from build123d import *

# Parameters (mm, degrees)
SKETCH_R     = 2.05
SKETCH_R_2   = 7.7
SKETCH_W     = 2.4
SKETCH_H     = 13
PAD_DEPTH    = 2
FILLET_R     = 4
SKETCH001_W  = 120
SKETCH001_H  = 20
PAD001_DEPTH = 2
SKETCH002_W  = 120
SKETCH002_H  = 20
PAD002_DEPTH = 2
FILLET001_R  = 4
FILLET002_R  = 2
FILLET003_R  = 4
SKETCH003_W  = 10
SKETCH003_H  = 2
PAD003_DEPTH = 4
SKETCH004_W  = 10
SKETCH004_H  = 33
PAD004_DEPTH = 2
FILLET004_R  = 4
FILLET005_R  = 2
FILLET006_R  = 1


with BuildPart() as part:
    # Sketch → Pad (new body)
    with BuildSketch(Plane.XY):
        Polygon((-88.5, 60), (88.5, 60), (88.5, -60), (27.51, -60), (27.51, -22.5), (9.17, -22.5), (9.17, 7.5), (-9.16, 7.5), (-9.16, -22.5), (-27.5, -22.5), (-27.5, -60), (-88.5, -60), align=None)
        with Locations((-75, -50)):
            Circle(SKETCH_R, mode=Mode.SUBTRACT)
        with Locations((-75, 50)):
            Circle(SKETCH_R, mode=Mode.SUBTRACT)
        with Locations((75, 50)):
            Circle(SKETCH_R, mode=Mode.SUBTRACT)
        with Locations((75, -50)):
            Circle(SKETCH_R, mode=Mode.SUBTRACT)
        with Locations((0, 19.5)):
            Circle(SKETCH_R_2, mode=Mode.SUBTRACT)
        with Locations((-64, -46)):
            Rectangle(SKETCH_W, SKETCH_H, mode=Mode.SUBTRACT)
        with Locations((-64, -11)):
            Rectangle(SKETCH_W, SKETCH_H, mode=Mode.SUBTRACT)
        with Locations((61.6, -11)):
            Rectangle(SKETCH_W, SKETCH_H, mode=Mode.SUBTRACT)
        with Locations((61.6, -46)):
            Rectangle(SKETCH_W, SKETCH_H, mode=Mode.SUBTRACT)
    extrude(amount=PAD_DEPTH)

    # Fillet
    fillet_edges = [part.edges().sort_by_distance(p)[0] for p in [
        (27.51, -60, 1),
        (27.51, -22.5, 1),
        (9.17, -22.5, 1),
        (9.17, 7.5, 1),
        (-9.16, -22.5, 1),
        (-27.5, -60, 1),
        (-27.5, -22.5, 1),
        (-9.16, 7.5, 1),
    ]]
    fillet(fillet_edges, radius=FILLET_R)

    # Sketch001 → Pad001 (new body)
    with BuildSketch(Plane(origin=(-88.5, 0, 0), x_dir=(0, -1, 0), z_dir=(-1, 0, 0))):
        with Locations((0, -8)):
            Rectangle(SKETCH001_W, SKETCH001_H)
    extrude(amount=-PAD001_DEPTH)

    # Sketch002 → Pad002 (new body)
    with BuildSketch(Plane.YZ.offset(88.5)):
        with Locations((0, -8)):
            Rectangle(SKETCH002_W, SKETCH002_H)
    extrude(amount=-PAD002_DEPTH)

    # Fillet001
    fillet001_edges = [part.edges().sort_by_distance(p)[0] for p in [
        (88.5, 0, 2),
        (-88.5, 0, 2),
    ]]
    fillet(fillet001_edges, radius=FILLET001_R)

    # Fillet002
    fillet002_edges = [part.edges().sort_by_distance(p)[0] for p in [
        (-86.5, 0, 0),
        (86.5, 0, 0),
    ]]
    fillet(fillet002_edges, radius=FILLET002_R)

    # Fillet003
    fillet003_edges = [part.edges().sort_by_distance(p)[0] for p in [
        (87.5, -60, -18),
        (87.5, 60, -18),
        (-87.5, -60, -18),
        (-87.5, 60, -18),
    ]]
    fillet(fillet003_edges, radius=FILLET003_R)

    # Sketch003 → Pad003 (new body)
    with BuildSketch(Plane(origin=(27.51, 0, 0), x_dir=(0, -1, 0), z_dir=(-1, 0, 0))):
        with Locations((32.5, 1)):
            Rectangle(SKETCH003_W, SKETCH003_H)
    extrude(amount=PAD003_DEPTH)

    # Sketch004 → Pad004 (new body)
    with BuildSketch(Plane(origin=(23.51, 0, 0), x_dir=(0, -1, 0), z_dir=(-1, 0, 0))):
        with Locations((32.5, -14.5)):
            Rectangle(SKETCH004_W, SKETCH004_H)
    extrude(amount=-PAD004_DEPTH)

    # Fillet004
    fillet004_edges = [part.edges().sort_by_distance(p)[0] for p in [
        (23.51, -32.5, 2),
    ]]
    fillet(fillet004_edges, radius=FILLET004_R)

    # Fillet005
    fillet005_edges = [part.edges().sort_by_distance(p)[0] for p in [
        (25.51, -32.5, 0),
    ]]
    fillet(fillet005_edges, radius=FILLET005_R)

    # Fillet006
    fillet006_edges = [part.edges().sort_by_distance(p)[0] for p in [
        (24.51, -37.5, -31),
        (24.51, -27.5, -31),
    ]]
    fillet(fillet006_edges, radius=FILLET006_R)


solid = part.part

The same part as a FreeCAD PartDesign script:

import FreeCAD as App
import Part
import Sketcher
from FreeCAD import Vector
Q = App.Units.Quantity


def edges_at(feature, points):
    """Names of the edges that pass closest to the given points."""
    edges = feature.Shape.Edges
    near = lambda p: min(range(len(edges)), key=lambda i: edges[i].distToShape(Part.Vertex(*p))[0])
    return sorted({f"Edge{near(p) + 1}" for p in points})


def add_polygon(sketch, points):
    """Adds a closed chain of lines whose ends are joined by coincident constraints."""
    first, n = sketch.GeometryCount, len(points)
    for a, b in zip(points, points[1:] + points[:1]):
        sketch.addGeometry(Part.LineSegment(App.Vector(*a, 0), App.Vector(*b, 0)), False)
    for i in range(n):
        sketch.addConstraint(Sketcher.Constraint("Coincident", first + i, 2, first + (i + 1) % n, 1))

doc = App.newDocument("Part")
body = doc.addObject("PartDesign::Body", "Body")

# Sketch on XY plane
sketch1 = body.newObject("Sketcher::SketchObject", "Sketch")
sketch1.AttachmentSupport = (doc.getObject("XY_Plane"), [""])
sketch1.MapMode = "FlatFace"
add_polygon(sketch1, [(88.5, 60), (-88.5, 60), (-88.5, -60), (-27.5, -60), (-27.5, -22.5), (-9.2, -22.5), (-9.2, 7.5), (9.2, 7.5), (9.2, -22.5), (27.5, -22.5), (27.5, -60), (88.5, -60)])  # lines 0-11
sketch1.addGeometry(Part.Circle(Vector(75, -50, 0), Vector(0, 0, 1), 2), False)  # 12
add_polygon(sketch1, [(60.4, -52.5), (60.4, -39.5), (62.8, -39.5), (62.8, -52.5)])  # lines 13-16
add_polygon(sketch1, [(60.4, -17.5), (60.4, -4.5), (62.8, -4.5), (62.8, -17.5)])  # lines 17-20
add_polygon(sketch1, [(-65.2, -52.5), (-65.2, -39.5), (-62.8, -39.5), (-62.8, -52.5)])  # lines 21-24
sketch1.addGeometry(Part.Circle(Vector(-75, -50, 0), Vector(0, 0, 1), 2), False)  # 25
add_polygon(sketch1, [(-65.2, -17.5), (-65.2, -4.5), (-62.8, -4.5), (-62.8, -17.5)])  # lines 26-29
sketch1.addGeometry(Part.Circle(Vector(75, 50, 0), Vector(0, 0, 1), 2), False)  # 30
sketch1.addGeometry(Part.Circle(Vector(0, 19.5, 0), Vector(0, 0, 1), 7.7), False)  # 31
sketch1.addGeometry(Part.Circle(Vector(-75, 50, 0), Vector(0, 0, 1), 2), False)  # 32
sketch1.addConstraint(Sketcher.Constraint("Horizontal", 0))
sketch1.addConstraint(Sketcher.Constraint("Vertical", 1))
sketch1.addConstraint(Sketcher.Constraint("Horizontal", 2))
sketch1.addConstraint(Sketcher.Constraint("Vertical", 3))
sketch1.addConstraint(Sketcher.Constraint("Horizontal", 4))
sketch1.addConstraint(Sketcher.Constraint("Vertical", 5))
sketch1.addConstraint(Sketcher.Constraint("Horizontal", 6))
sketch1.addConstraint(Sketcher.Constraint("Vertical", 7))
sketch1.addConstraint(Sketcher.Constraint("Horizontal", 8))
sketch1.addConstraint(Sketcher.Constraint("Vertical", 9))
sketch1.addConstraint(Sketcher.Constraint("Horizontal", 10))
sketch1.addConstraint(Sketcher.Constraint("Vertical", 11))
sketch1.addConstraint(Sketcher.Constraint("Vertical", 13))
sketch1.addConstraint(Sketcher.Constraint("Horizontal", 14))
sketch1.addConstraint(Sketcher.Constraint("Vertical", 15))
sketch1.addConstraint(Sketcher.Constraint("Horizontal", 16))
sketch1.addConstraint(Sketcher.Constraint("Vertical", 17))
sketch1.addConstraint(Sketcher.Constraint("Horizontal", 18))
sketch1.addConstraint(Sketcher.Constraint("Vertical", 19))
sketch1.addConstraint(Sketcher.Constraint("Horizontal", 20))
sketch1.addConstraint(Sketcher.Constraint("Vertical", 21))
sketch1.addConstraint(Sketcher.Constraint("Horizontal", 22))
sketch1.addConstraint(Sketcher.Constraint("Vertical", 23))
sketch1.addConstraint(Sketcher.Constraint("Horizontal", 24))
sketch1.addConstraint(Sketcher.Constraint("Vertical", 26))
sketch1.addConstraint(Sketcher.Constraint("Horizontal", 27))
sketch1.addConstraint(Sketcher.Constraint("Vertical", 28))
sketch1.addConstraint(Sketcher.Constraint("Horizontal", 29))
sketch1.addConstraint(Sketcher.Constraint("Equal", 12, 25))
sketch1.addConstraint(Sketcher.Constraint("Equal", 25, 30))
sketch1.addConstraint(Sketcher.Constraint("Equal", 30, 32))
sketch1.addConstraint(Sketcher.Constraint("Symmetric", 25, 3, 30, 3, -1, 1))
sketch1.addConstraint(Sketcher.Constraint("Symmetric", 12, 3, 32, 3, -1, 1))
sketch1.addConstraint(Sketcher.Constraint("Symmetric", 0, 2, 10, 2, -1, 1))
sketch1.addConstraint(Sketcher.Constraint("Symmetric", 12, 3, 25, 3, -2))
sketch1.addConstraint(Sketcher.Constraint("Symmetric", 14, 2, 22, 2, -2))
sketch1.addConstraint(Sketcher.Constraint("Symmetric", 18, 2, 27, 2, -2))
sketch1.addConstraint(Sketcher.Constraint("PointOnObject", 31, 3, -2))
sketch1.addConstraint(Sketcher.Constraint("Horizontal", 4, 2, 7, 2))
sketch1.addConstraint(Sketcher.Constraint("Horizontal", 2, 2, 9, 2))
sketch1.addConstraint(Sketcher.Constraint("Horizontal", 16, 2, 23, 2))
sketch1.addConstraint(Sketcher.Constraint("Horizontal", 20, 2, 28, 2))
sketch1.addConstraint(Sketcher.Constraint("Vertical", 16, 2, 17, 2))
sketch1.addConstraint(Sketcher.Constraint("Vertical", 15, 2, 18, 2))
sketch1.addConstraint(Sketcher.Constraint("Vertical", 24, 2, 26, 2))
sketch1.addConstraint(Sketcher.Constraint("Equal", 4, 8))
sketch1.addConstraint(Sketcher.Constraint("Equal", 20, 22))
sketch1.addConstraint(Sketcher.Constraint("Equal", 15, 17))
sketch1.addConstraint(Sketcher.Constraint("Diameter", 12, Q("4.1 mm")))
sketch1.addConstraint(Sketcher.Constraint("Diameter", 31, Q("15.4 mm")))
sketch1.addConstraint(Sketcher.Constraint("DistanceX", 0, 2, 0, 1, Q("177 mm")))
sketch1.addConstraint(Sketcher.Constraint("DistanceX", 2, 1, 2, 2, Q("61 mm")))
sketch1.addConstraint(Sketcher.Constraint("DistanceY", 1, 2, 1, 1, Q("120 mm")))
sketch1.addConstraint(Sketcher.Constraint("DistanceY", 5, 1, 5, 2, Q("30 mm")))
sketch1.addConstraint(Sketcher.Constraint("DistanceY", 13, 1, 13, 2, Q("13 mm")))
sketch1.addConstraint(Sketcher.Constraint("DistanceX", 14, 1, 14, 2, Q("2.4 mm")))
sketch1.addConstraint(Sketcher.Constraint("DistanceY", 3, 1, 3, 2, Q("37.5 mm")))
sketch1.addConstraint(Sketcher.Constraint("DistanceX", -1, 1, 12, 3, Q("75 mm")))
sketch1.addConstraint(Sketcher.Constraint("DistanceY", 12, 3, -1, 1, Q("50 mm")))
sketch1.addConstraint(Sketcher.Constraint("DistanceY", 3, 2, 31, 3, Q("42 mm")))
sketch1.addConstraint(Sketcher.Constraint("DistanceY", 13, 2, 8, 2, Q("17 mm")))
sketch1.addConstraint(Sketcher.Constraint("DistanceY", 13, 2, 17, 2, Q("35 mm")))
sketch1.addConstraint(Sketcher.Constraint("DistanceX", 4, 1, 4, 2, Q("18.34 mm")))
sketch1.addConstraint(Sketcher.Constraint("DistanceX", 6, 1, 6, 2, Q("18.33 mm")))
sketch1.addConstraint(Sketcher.Constraint("DistanceX", -1, 1, 13, 2, Q("60.4 mm")))
pad1 = body.newObject("PartDesign::Pad", "Pad")
pad1.Profile = sketch1
pad1.Length = 2
doc.recompute()

fillet = body.newObject("PartDesign::Fillet", "Fillet")
fillet.Base = (pad1, edges_at(pad1, [
    (27.51, -60, 1),
    (27.51, -22.5, 1),
    (9.17, -22.5, 1),
    (9.17, 7.5, 1),
    (-9.16, -22.5, 1),
    (-27.5, -60, 1),
    (-27.5, -22.5, 1),
    (-9.16, 7.5, 1),
]))
fillet.Radius = 4

# Sketch on YZ plane
sketch2 = body.newObject("Sketcher::SketchObject", "Sketch001")
sketch2.AttachmentSupport = (doc.getObject("YZ_Plane"), [""])
sketch2.MapMode = "FlatFace"
sketch2.AttachmentOffset = App.Placement(Vector(0, 0, -88.5), App.Rotation())
add_polygon(sketch2, [(60, 2), (60, -18), (-60, -18), (-60, 2)])  # lines 0-3
sketch2.addConstraint(Sketcher.Constraint("Vertical", 0))
sketch2.addConstraint(Sketcher.Constraint("Horizontal", 1))
sketch2.addConstraint(Sketcher.Constraint("Vertical", 2))
sketch2.addConstraint(Sketcher.Constraint("Horizontal", 3))
sketch2.addConstraint(Sketcher.Constraint("DistanceX", 1, 2, 1, 1, Q("120 mm")))
sketch2.addConstraint(Sketcher.Constraint("DistanceY", 0, 2, 0, 1, Q("20 mm")))
sketch2.addConstraint(Sketcher.Constraint("DistanceX", -1, 1, 0, 2, Q("60 mm")))
sketch2.addConstraint(Sketcher.Constraint("DistanceY", 0, 2, -1, 1, Q("18 mm")))
pad2 = body.newObject("PartDesign::Pad", "Pad001")
pad2.Profile = sketch2
pad2.Length = 2

# Sketch on YZ plane
sketch3 = body.newObject("Sketcher::SketchObject", "Sketch002")
sketch3.AttachmentSupport = (doc.getObject("YZ_Plane"), [""])
sketch3.MapMode = "FlatFace"
sketch3.AttachmentOffset = App.Placement(Vector(0, 0, 88.5), App.Rotation())
add_polygon(sketch3, [(-60, 2), (-60, -18), (60, -18), (60, 2)])  # lines 0-3
sketch3.addConstraint(Sketcher.Constraint("Vertical", 0))
sketch3.addConstraint(Sketcher.Constraint("Horizontal", 1))
sketch3.addConstraint(Sketcher.Constraint("Vertical", 2))
sketch3.addConstraint(Sketcher.Constraint("Horizontal", 3))
sketch3.addConstraint(Sketcher.Constraint("DistanceX", 1, 1, 1, 2, Q("120 mm")))
sketch3.addConstraint(Sketcher.Constraint("DistanceY", 0, 2, 0, 1, Q("20 mm")))
sketch3.addConstraint(Sketcher.Constraint("DistanceX", 0, 2, -1, 1, Q("60 mm")))
sketch3.addConstraint(Sketcher.Constraint("DistanceY", 0, 2, -1, 1, Q("18 mm")))
pad3 = body.newObject("PartDesign::Pad", "Pad002")
pad3.Profile = sketch3
pad3.Length = 2
pad3.Reversed = True
doc.recompute()

fillet2 = body.newObject("PartDesign::Fillet", "Fillet001")
fillet2.Base = (pad3, edges_at(pad3, [(88.5, 0, 2), (-88.5, 0, 2)]))
fillet2.Radius = 4
doc.recompute()

fillet3 = body.newObject("PartDesign::Fillet", "Fillet002")
fillet3.Base = (fillet2, edges_at(fillet2, [(-86.5, 0, 0), (86.5, 0, 0)]))
fillet3.Radius = 2
doc.recompute()

fillet4 = body.newObject("PartDesign::Fillet", "Fillet003")
fillet4.Base = (fillet3, edges_at(fillet3, [
    (87.5, -60, -18),
    (87.5, 60, -18),
    (-87.5, -60, -18),
    (-87.5, 60, -18),
]))
fillet4.Radius = 4

# Sketch on YZ plane
sketch4 = body.newObject("Sketcher::SketchObject", "Sketch003")
sketch4.AttachmentSupport = (doc.getObject("YZ_Plane"), [""])
sketch4.MapMode = "FlatFace"
sketch4.AttachmentOffset = App.Placement(Vector(0, 0, 27.51), App.Rotation())
add_polygon(sketch4, [(-27.5, 2), (-27.5, 0), (-37.5, 0), (-37.5, 2)])  # lines 0-3
sketch4.addConstraint(Sketcher.Constraint("Vertical", 0))
sketch4.addConstraint(Sketcher.Constraint("Horizontal", 1))
sketch4.addConstraint(Sketcher.Constraint("Vertical", 2))
sketch4.addConstraint(Sketcher.Constraint("Horizontal", 3))
sketch4.addConstraint(Sketcher.Constraint("PointOnObject", 0, 2, -1))
sketch4.addConstraint(Sketcher.Constraint("DistanceX", 1, 2, 1, 1, Q("10 mm")))
sketch4.addConstraint(Sketcher.Constraint("DistanceY", 0, 2, 0, 1, Q("2 mm")))
sketch4.addConstraint(Sketcher.Constraint("DistanceX", 0, 2, -1, 1, Q("27.5 mm")))
pad4 = body.newObject("PartDesign::Pad", "Pad003")
pad4.Profile = sketch4
pad4.Length = 4
pad4.Reversed = True

# Sketch on YZ plane
sketch5 = body.newObject("Sketcher::SketchObject", "Sketch004")
sketch5.AttachmentSupport = (doc.getObject("YZ_Plane"), [""])
sketch5.MapMode = "FlatFace"
sketch5.AttachmentOffset = App.Placement(Vector(0, 0, 23.51), App.Rotation())
add_polygon(sketch5, [(-28, 2), (-28, -31), (-38, -31), (-38, 2)])  # lines 0-3
sketch5.addConstraint(Sketcher.Constraint("Vertical", 0))
sketch5.addConstraint(Sketcher.Constraint("Horizontal", 1))
sketch5.addConstraint(Sketcher.Constraint("Vertical", 2))
sketch5.addConstraint(Sketcher.Constraint("Horizontal", 3))
sketch5.addConstraint(Sketcher.Constraint("DistanceX", 1, 2, 1, 1, Q("10 mm")))
sketch5.addConstraint(Sketcher.Constraint("DistanceY", 0, 2, 0, 1, Q("33 mm")))
sketch5.addConstraint(Sketcher.Constraint("DistanceY", 0, 2, -1, 1, Q("31 mm")))
sketch5.addConstraint(Sketcher.Constraint("DistanceX", 0, 2, -1, 1, Q("27.5 mm")))
pad5 = body.newObject("PartDesign::Pad", "Pad004")
pad5.Profile = sketch5
pad5.Length = 2
doc.recompute()

fillet5 = body.newObject("PartDesign::Fillet", "Fillet004")
fillet5.Base = (pad5, edges_at(pad5, [(23.51, -32.5, 2)]))
fillet5.Radius = 4
doc.recompute()

fillet6 = body.newObject("PartDesign::Fillet", "Fillet005")
fillet6.Base = (fillet5, edges_at(fillet5, [(25.51, -32.5, 0)]))
fillet6.Radius = 2
doc.recompute()

fillet7 = body.newObject("PartDesign::Fillet", "Fillet006")
fillet7.Base = (fillet6, edges_at(fillet6, [(24.51, -37.5, -31), (24.51, -27.5, -31)]))
fillet7.Radius = 1

doc.recompute()
